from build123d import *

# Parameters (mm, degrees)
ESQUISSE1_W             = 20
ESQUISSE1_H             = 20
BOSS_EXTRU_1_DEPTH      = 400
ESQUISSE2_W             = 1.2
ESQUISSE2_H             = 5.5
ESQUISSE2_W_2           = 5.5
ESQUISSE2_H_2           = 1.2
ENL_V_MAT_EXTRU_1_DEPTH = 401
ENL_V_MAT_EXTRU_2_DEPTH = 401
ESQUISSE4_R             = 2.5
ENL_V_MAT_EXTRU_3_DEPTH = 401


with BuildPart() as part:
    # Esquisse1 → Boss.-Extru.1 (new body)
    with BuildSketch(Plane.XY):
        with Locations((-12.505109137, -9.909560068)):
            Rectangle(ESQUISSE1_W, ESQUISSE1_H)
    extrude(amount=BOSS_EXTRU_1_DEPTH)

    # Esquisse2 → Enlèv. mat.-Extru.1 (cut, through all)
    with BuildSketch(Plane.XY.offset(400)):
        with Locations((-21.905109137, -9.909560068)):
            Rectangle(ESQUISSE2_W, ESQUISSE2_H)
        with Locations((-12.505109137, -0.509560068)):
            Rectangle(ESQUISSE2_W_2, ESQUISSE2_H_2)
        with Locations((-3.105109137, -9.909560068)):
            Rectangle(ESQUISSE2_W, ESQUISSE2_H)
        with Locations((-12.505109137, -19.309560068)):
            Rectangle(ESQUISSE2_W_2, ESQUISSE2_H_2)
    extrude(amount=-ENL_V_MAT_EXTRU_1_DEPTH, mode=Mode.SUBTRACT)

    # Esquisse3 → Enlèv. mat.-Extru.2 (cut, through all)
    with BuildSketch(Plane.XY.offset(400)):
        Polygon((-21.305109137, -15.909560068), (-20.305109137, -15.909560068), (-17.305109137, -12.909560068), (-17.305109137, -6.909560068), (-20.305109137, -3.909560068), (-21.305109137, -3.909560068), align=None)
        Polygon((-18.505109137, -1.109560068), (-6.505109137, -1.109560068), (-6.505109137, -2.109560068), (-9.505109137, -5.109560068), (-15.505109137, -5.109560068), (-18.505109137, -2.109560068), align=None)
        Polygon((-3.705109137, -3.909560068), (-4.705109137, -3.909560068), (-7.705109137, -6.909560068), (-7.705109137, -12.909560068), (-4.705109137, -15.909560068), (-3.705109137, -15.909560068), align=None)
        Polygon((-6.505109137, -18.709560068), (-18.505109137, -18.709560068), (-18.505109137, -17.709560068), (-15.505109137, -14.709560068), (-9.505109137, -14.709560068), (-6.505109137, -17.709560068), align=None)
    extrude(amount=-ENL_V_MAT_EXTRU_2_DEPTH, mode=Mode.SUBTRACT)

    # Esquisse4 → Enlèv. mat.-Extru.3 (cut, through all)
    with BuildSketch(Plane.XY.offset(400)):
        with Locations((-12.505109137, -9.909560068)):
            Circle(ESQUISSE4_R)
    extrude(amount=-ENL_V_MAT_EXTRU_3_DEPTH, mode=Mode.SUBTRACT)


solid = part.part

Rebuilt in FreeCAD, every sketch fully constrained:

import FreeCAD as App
import Part
import Sketcher
from FreeCAD import Vector


def add_polygon(sketch, points):
    """Adds a closed chain of lines whose ends are joined by coincident constraints."""
    first, n = sketch.GeometryCount, len(points)
    for a, b in zip(points, points[1:] + points[:1]):
        sketch.addGeometry(Part.LineSegment(App.Vector(*a, 0), App.Vector(*b, 0)), False)
    for i in range(n):
        sketch.addConstraint(Sketcher.Constraint("Coincident", first + i, 2, first + (i + 1) % n, 1))

doc = App.newDocument("Part")
body = doc.addObject("PartDesign::Body", "Body")

sketch1 = body.newObject("Sketcher::SketchObject", "Sketch")
sketch1.AttachmentSupport = (doc.getObject("XY_Plane"), [""])
sketch1.MapMode = "FlatFace"
add_polygon(sketch1, [(-23, 0), (-23, -20), (-3, -20), (-3, 0)])
sketch1.addConstraint([
    Sketcher.Constraint("Vertical", 0),
    Sketcher.Constraint("Horizontal", 1),
    Sketcher.Constraint("Vertical", 2),
    Sketcher.Constraint("Horizontal", 3),
    Sketcher.Constraint("Equal", 3, 0),
    Sketcher.Constraint("DistanceX", 1, 1, 1, 2, 20.0),
    Sketcher.Constraint("DistanceX", 0, 2, -1, 1, 22.505109),
    Sketcher.Constraint("DistanceY", 0, 2, -1, 1, 19.90956),
])
pad1 = body.newObject("PartDesign::Pad", "Pad")
pad1.Profile = sketch1
pad1.Length = 400

sketch2 = body.newObject("Sketcher::SketchObject", "Sketch001")
sketch2.AttachmentSupport = (doc.getObject("XY_Plane"), [""])
sketch2.MapMode = "FlatFace"
sketch2.AttachmentOffset = App.Placement(Vector(0, 0, 400), App.Rotation())
add_polygon(sketch2, [(-22.5, -7.2), (-22.5, -12.7), (-21.3, -12.7), (-21.3, -7.2)])
add_polygon(sketch2, [(-15.3, 0.1), (-15.3, -1.1), (-9.8, -1.1), (-9.8, 0.1)])
add_polygon(sketch2, [(-3.7, -7.2), (-3.7, -12.7), (-2.5, -12.7), (-2.5, -7.2)])
add_polygon(sketch2, [(-15.3, -18.7), (-15.3, -19.9), (-9.8, -19.9), (-9.8, -18.7)])
sketch2.addConstraint([
    Sketcher.Constraint("Vertical", 0),
    Sketcher.Constraint("Horizontal", 1),
    Sketcher.Constraint("Vertical", 2),
    Sketcher.Constraint("Horizontal", 3),
    Sketcher.Constraint("Vertical", 4),
    Sketcher.Constraint("Horizontal", 5),
    Sketcher.Constraint("Vertical", 6),
    Sketcher.Constraint("Horizontal", 7),
    Sketcher.Constraint("Vertical", 8),
    Sketcher.Constraint("Horizontal", 9),
    Sketcher.Constraint("Vertical", 10),
    Sketcher.Constraint("Horizontal", 11),
    Sketcher.Constraint("Vertical", 12),
    Sketcher.Constraint("Horizontal", 13),
    Sketcher.Constraint("Vertical", 14),
    Sketcher.Constraint("Horizontal", 15),
    Sketcher.Constraint("Horizontal", 1, 2, 8, 2),
    Sketcher.Constraint("Horizontal", 3, 2, 10, 2),
    Sketcher.Constraint("Vertical", 7, 2, 12, 2),
    Sketcher.Constraint("Vertical", 6, 2, 13, 2),
    Sketcher.Constraint("Equal", 3, 9),
    Sketcher.Constraint("Equal", 15, 0),
    Sketcher.Constraint("Equal", 11, 4),
    Sketcher.Constraint("Equal", 6, 12),
    Sketcher.Constraint("DistanceX", 1, 1, 1, 2, 1.2),
    Sketcher.Constraint("DistanceX", 5, 1, 5, 2, 5.5),
    Sketcher.Constraint("DistanceX", 1, 2, 8, 2, 17.6),
    Sketcher.Constraint("DistanceX", 2, 2, 4, 2, 6.05),
    Sketcher.Constraint("DistanceY", 2, 2, 4, 2, 6.05),
    Sketcher.Constraint("DistanceY", 12, 2, 1, 2, 7.25),
    Sketcher.Constraint("DistanceX", 0, 2, -1, 1, 22.505109),
    Sketcher.Constraint("DistanceY", 0, 2, -1, 1, 12.65956),
])
pocket1 = body.newObject("PartDesign::Pocket", "Pocket")
pocket1.Profile = sketch2
pocket1.Type = "ThroughAll"

sketch3 = body.newObject("Sketcher::SketchObject", "Sketch002")
sketch3.AttachmentSupport = (doc.getObject("XY_Plane"), [""])
sketch3.MapMode = "FlatFace"
sketch3.AttachmentOffset = App.Placement(Vector(0, 0, 400), App.Rotation())
add_polygon(sketch3, [(-21.3, -15.9), (-20.3, -15.9), (-17.3, -12.9), (-17.3, -6.9), (-20.3, -3.9), (-21.3, -3.9)])
add_polygon(sketch3, [(-6.5, -1.1), (-18.5, -1.1), (-18.5, -2.1), (-15.5, -5.1), (-9.5, -5.1), (-6.5, -2.1)])
add_polygon(sketch3, [(-3.7, -3.9), (-4.7, -3.9), (-7.7, -6.9), (-7.7, -12.9), (-4.7, -15.9), (-3.7, -15.9)])
add_polygon(sketch3, [(-18.5, -18.7), (-6.5, -18.7), (-6.5, -17.7), (-9.5, -14.7), (-15.5, -14.7), (-18.5, -17.7)])
sketch3.addConstraint([
    Sketcher.Constraint("Horizontal", 0),
    Sketcher.Constraint("Vertical", 2),
    Sketcher.Constraint("Horizontal", 4),
    Sketcher.Constraint("Vertical", 5),
    Sketcher.Constraint("Horizontal", 6),
    Sketcher.Constraint("Vertical", 7),
    Sketcher.Constraint("Horizontal", 9),
    Sketcher.Constraint("Vertical", 11),
    Sketcher.Constraint("Horizontal", 12),
    Sketcher.Constraint("Vertical", 14),
    Sketcher.Constraint("Horizontal", 16),
    Sketcher.Constraint("Vertical", 17),
    Sketcher.Constraint("Horizontal", 18),
    Sketcher.Constraint("Vertical", 19),
    Sketcher.Constraint("Horizontal", 21),
    Sketcher.Constraint("Vertical", 23),
    Sketcher.Constraint("Perpendicular", 1, 3),
    Sketcher.Constraint("Parallel", 3, 8),
    Sketcher.Constraint("Perpendicular", 8, 10),
    Sketcher.Constraint("Parallel", 10, 13),
    Sketcher.Constraint("Perpendicular", 13, 15),
    Sketcher.Constraint("Parallel", 15, 20),
    Sketcher.Constraint("Perpendicular", 20, 22),
    Sketcher.Constraint("Horizontal", 7, 2, 10, 2),
    Sketcher.Constraint("Horizontal", 4, 2, 12, 2),
    Sketcher.Constraint("Horizontal", 2, 2, 13, 2),
    Sketcher.Constraint("Horizontal", 1, 2, 14, 2),
    Sketcher.Constraint("Horizontal", 5, 2, 15, 2),
    Sketcher.Constraint("Horizontal", 19, 2, 22, 2),
    Sketcher.Constraint("Vertical", 0, 2, 3, 2),
    Sketcher.Constraint("Vertical", 12, 2, 15, 2),
    Sketcher.Constraint("Vertical", 11, 2, 18, 2),
    Sketcher.Constraint("Vertical", 9, 2, 20, 2),
    Sketcher.Constraint("Vertical", 8, 2, 21, 2),
    Sketcher.Constraint("Equal", 4, 12),
    Sketcher.Constraint("Equal", 21, 2),
    Sketcher.Constraint("Equal", 18, 5),
    Sketcher.Constraint("Equal", 16, 7),
    Sketcher.Constraint("Equal", 11, 19),
    Sketcher.Constraint("DistanceX", 0, 1, 0, 2, 1.0),
    Sketcher.Constraint("DistanceX", 6, 2, 6, 1, 12.0),
    Sketcher.Constraint("DistanceX", 9, 1, 9, 2, 6.0),
    Sketcher.Constraint("DistanceX", 3, 2, 6, 2, 1.8),
    Sketcher.Constraint("DistanceY", 3, 2, 6, 2, 2.8),
    Sketcher.Constraint("DistanceX", 10, 2, 12, 2, 1.8),
    Sketcher.Constraint("DistanceY", 18, 2, 15, 2, 2.8),
    Sketcher.Constraint("DistanceX", 0, 2, -1, 1, 20.305109),
    Sketcher.Constraint("DistanceY", 0, 2, -1, 1, 15.90956),
])
pocket2 = body.newObject("PartDesign::Pocket", "Pocket001")
pocket2.Profile = sketch3
pocket2.Type = "ThroughAll"

sketch4 = body.newObject("Sketcher::SketchObject", "Sketch003")
sketch4.AttachmentSupport = (doc.getObject("XY_Plane"), [""])
sketch4.MapMode = "FlatFace"
sketch4.AttachmentOffset = App.Placement(Vector(0, 0, 400), App.Rotation())
sketch4.addGeometry(Part.Circle(Vector(-12.5, -9.9, 0), Vector(0, 0, 1), 2.5), False)
sketch4.addConstraint([
    Sketcher.Constraint("Diameter", 0, 5.0),
    Sketcher.Constraint("DistanceX", 0, 3, -1, 1, 12.505109),
    Sketcher.Constraint("DistanceY", 0, 3, -1, 1, 9.90956),
])
pocket3 = body.newObject("PartDesign::Pocket", "Pocket002")
pocket3.Profile = sketch4
pocket3.Type = "ThroughAll"

doc.recompute()
